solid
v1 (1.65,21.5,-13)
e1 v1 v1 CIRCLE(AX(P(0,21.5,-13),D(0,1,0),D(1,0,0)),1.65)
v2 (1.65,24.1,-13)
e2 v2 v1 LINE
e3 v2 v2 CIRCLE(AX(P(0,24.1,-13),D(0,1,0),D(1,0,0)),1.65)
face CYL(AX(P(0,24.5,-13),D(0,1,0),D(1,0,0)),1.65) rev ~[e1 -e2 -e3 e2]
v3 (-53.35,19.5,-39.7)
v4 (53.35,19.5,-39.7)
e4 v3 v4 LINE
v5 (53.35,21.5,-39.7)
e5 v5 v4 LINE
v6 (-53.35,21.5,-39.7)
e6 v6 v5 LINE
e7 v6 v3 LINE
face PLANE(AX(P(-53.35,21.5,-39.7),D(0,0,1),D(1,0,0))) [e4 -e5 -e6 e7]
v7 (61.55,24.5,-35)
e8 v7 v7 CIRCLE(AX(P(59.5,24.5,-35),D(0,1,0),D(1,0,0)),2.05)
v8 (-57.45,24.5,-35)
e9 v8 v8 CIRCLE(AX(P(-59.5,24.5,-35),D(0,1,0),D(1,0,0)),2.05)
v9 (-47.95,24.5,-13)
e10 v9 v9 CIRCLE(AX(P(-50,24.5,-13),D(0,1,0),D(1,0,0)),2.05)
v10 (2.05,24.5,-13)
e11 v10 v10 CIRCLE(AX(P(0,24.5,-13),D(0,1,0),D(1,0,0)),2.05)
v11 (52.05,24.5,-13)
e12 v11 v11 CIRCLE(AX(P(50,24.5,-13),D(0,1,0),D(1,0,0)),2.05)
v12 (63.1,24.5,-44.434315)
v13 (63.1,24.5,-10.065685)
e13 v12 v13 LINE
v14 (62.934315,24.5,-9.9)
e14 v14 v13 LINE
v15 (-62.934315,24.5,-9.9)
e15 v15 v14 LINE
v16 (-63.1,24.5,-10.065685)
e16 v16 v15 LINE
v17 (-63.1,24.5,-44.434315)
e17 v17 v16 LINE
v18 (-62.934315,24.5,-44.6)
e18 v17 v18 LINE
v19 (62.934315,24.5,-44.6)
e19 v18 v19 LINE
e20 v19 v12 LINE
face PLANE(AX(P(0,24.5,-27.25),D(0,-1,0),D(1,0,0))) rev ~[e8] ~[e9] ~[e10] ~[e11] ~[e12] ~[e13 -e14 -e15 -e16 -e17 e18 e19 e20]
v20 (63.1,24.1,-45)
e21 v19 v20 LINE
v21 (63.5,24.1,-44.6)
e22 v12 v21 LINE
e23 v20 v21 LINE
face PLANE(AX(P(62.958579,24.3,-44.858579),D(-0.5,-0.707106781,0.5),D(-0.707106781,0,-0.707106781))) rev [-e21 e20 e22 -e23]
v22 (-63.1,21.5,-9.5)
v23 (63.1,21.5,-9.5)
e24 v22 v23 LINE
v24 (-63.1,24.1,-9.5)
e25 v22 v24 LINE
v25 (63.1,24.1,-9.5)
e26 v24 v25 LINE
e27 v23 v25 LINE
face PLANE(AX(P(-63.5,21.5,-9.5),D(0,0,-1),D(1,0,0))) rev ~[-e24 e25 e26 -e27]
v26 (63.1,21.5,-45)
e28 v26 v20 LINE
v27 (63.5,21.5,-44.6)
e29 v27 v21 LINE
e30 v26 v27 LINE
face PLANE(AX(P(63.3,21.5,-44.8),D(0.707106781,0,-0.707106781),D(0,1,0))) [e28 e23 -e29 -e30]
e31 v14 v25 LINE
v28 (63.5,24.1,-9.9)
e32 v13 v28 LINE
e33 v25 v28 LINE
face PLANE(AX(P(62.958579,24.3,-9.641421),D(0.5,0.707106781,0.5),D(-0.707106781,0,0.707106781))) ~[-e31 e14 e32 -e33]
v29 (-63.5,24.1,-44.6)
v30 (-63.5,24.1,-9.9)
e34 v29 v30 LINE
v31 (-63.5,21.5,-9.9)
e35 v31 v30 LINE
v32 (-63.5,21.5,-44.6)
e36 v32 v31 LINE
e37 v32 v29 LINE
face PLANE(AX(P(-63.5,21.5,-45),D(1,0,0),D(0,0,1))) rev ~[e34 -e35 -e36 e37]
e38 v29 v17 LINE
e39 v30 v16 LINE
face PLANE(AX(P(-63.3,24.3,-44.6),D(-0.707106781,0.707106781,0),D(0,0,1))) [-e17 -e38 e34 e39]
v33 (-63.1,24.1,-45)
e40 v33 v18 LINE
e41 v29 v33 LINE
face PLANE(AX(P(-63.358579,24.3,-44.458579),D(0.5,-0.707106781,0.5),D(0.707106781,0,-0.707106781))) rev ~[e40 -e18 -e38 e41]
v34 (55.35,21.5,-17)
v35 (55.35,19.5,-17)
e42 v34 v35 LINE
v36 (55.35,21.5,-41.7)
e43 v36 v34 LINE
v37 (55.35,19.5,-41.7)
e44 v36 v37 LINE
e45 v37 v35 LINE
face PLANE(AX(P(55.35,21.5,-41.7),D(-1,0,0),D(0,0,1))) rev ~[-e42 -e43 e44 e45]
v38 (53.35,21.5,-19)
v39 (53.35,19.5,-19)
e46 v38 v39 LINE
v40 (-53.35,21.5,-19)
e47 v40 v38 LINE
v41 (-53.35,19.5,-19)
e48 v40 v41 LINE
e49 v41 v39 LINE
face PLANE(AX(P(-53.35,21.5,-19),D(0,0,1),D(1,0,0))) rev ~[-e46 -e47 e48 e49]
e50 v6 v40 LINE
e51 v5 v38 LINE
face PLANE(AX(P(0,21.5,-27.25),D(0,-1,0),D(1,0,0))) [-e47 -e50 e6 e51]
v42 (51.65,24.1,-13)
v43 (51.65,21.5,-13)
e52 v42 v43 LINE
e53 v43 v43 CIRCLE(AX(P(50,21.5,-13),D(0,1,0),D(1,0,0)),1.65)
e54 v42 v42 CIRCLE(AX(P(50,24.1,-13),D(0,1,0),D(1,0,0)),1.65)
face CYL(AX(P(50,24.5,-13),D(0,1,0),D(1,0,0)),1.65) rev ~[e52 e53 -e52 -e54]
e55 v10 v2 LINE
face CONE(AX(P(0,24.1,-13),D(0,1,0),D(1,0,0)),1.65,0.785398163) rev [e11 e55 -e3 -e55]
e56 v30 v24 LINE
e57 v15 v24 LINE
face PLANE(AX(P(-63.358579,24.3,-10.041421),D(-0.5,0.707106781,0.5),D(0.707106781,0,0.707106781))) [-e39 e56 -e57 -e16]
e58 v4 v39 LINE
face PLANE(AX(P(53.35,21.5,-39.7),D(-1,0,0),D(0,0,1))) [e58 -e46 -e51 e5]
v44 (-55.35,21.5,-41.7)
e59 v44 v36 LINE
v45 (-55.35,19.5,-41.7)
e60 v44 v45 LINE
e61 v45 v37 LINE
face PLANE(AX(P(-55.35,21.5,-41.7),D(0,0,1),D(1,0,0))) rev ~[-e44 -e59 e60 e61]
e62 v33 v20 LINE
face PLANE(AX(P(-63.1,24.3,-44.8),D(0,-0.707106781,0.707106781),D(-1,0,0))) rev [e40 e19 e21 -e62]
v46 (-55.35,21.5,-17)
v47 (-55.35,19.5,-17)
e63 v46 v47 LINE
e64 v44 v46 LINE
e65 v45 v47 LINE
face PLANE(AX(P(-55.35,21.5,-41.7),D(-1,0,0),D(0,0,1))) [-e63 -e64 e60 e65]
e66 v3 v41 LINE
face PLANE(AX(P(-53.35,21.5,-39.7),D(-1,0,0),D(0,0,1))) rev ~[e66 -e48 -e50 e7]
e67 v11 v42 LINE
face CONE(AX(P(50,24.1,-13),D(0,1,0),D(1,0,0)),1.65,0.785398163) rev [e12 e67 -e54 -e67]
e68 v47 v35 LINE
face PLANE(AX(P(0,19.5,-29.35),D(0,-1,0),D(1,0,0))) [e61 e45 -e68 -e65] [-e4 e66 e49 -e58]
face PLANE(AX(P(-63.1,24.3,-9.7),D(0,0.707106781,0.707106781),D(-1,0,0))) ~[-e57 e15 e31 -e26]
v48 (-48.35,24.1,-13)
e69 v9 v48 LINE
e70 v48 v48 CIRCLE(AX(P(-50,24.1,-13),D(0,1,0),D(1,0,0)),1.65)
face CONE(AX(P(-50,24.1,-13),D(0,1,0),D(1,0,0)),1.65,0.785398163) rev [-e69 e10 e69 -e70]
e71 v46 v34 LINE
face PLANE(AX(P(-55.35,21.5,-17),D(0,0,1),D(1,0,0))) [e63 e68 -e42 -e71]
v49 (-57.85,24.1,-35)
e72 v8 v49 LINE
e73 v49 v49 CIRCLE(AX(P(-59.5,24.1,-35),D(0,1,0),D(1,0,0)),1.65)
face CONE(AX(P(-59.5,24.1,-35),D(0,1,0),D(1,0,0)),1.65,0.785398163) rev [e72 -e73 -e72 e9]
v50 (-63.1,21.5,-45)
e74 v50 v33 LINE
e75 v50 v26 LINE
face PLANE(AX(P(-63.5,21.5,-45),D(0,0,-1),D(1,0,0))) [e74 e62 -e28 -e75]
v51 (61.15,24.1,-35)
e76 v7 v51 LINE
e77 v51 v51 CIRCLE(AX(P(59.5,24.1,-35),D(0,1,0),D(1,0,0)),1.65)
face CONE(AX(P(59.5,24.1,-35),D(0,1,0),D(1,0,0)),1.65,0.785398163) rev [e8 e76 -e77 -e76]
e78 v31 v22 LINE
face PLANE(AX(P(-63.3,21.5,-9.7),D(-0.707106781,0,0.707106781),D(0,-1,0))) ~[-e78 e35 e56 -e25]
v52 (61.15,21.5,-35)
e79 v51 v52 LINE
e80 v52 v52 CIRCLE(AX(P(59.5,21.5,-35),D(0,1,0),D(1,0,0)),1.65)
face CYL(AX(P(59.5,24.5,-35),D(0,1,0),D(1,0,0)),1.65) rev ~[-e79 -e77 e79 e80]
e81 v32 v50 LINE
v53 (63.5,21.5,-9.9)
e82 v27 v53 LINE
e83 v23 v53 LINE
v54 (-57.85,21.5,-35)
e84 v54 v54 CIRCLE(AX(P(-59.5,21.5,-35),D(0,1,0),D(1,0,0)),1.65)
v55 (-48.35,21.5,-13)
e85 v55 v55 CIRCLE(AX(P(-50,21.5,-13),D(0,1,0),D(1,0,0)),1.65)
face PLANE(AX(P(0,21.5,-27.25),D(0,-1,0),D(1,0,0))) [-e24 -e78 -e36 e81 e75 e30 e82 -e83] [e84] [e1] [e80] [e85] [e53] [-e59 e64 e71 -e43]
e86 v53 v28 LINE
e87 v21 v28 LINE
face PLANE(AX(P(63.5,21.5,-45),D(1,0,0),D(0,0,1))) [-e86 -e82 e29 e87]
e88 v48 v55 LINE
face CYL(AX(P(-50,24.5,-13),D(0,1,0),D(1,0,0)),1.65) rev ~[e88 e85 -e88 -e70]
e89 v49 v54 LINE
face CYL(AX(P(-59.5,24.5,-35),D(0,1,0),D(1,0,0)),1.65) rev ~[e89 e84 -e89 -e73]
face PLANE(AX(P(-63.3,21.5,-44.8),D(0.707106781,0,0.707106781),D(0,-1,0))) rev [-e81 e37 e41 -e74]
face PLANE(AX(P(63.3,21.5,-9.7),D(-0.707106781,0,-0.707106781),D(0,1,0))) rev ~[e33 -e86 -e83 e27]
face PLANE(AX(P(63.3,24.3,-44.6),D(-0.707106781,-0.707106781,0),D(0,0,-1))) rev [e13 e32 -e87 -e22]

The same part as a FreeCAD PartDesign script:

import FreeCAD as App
import Part
import Sketcher

V = App.Vector


def edges_at(feature, points):
    """Names of the edges that pass closest to the given points."""
    edges = feature.Shape.Edges
    near = lambda p: min(range(len(edges)), key=lambda i: edges[i].distToShape(Part.Vertex(*p))[0])
    return sorted({f"Edge{near(p) + 1}" for p in points})


def add_polygon(sketch, points):
    """Adds a closed chain of lines whose ends are joined by coincident constraints."""
    first, n = sketch.GeometryCount, len(points)
    for a, b in zip(points, points[1:] + points[:1]):
        sketch.addGeometry(Part.LineSegment(App.Vector(*a, 0), App.Vector(*b, 0)), False)
    for i in range(n):
        sketch.addConstraint(Sketcher.Constraint("Coincident", first + i, 2, first + (i + 1) % n, 1))

doc = App.newDocument("Part")
params = doc.addObject("Spreadsheet::Sheet", "Params")
for row, (alias, value) in enumerate([
    ("sketch1_width", "127 mm"),
    ("sketch1_height", "35.5 mm"),
    ("pad1_length", "3 mm"),
    ("sketch2_diameter", "3.3 mm"),
    ("pocket1_length", "5 mm"),
    ("chamfer_size", "0.4 mm"),
    ("sketch3_width", "110.7 mm"),
    ("sketch3_width2", "106.7 mm"),
    ("sketch3_height", "24.7 mm"),
    ("sketch3_height2", "20.7 mm"),
    ("pad2_length", "2 mm"),
    ("chamfer2_size", "0.4 mm"),
], start=1):
    params.set(f"A{row}", alias)
    params.set(f"B{row}", "=" + value)
    params.setAlias(f"B{row}", alias)

body = doc.addObject("PartDesign::Body", "Body")

# Sketch on XZ plane
sketch1 = body.newObject("Sketcher::SketchObject", "Sketch")
sketch1.AttachmentSupport = (doc.getObject("XZ_Plane"), [""])
sketch1.MapMode = "FlatFace"
add_polygon(sketch1, [(-64, 8), (-64, -28), (64, -28), (64, 8)])  # lines 0-3
sketch1.addConstraint(Sketcher.Constraint("Vertical", 0))
sketch1.addConstraint(Sketcher.Constraint("Horizontal", 1))
sketch1.addConstraint(Sketcher.Constraint("Vertical", 2))
sketch1.addConstraint(Sketcher.Constraint("Horizontal", 3))
sketch1.addConstraint(Sketcher.Constraint("DistanceX", 1, 1, 1, 2, 127.0))
sketch1.addConstraint(Sketcher.Constraint("DistanceY", 0, 2, 0, 1, 35.5))
sketch1.addConstraint(Sketcher.Constraint("DistanceY", 0, 2, -1, 1, 28.0))
sketch1.addConstraint(Sketcher.Constraint("DistanceX", 0, 2, -1, 1, 63.5))
sketch1.setExpression("Constraints[8]", "Params.sketch1_width")
sketch1.setExpression("Constraints[9]", "Params.sketch1_height")
pad1 = body.newObject("PartDesign::Pad", "Pad")
pad1.Profile = sketch1
pad1.setExpression("Length", "Params.pad1_length")
pad1.Reversed = True

# Sketch on XZ plane
sketch2 = body.newObject("Sketcher::SketchObject", "Sketch001")
sketch2.AttachmentSupport = (doc.getObject("XZ_Plane"), [""])
sketch2.MapMode = "FlatFace"
sketch2.AttachmentOffset = App.Placement(V(0, 0, -3), App.Rotation())
sketch2.addGeometry(Part.Circle(V(-59.5, -18, 0), V(0, 0, 1), 1.6), False)
sketch2.addGeometry(Part.Circle(V(59.5, -18, 0), V(0, 0, 1), 1.6), False)
sketch2.addGeometry(Part.Circle(V(-50, 4, 0), V(0, 0, 1), 1.6), False)
sketch2.addGeometry(Part.Circle(V(0, 4, 0), V(0, 0, 1), 1.6), False)
sketch2.addGeometry(Part.Circle(V(50, 4, 0), V(0, 0, 1), 1.6), False)
sketch2.addConstraint(Sketcher.Constraint("Equal", 0, 1))
sketch2.addConstraint(Sketcher.Constraint("Equal", 1, 2))
sketch2.addConstraint(Sketcher.Constraint("Equal", 2, 3))
sketch2.addConstraint(Sketcher.Constraint("Equal", 3, 4))
sketch2.addConstraint(Sketcher.Constraint("Symmetric", 0, 3, 1, 3, -2))
sketch2.addConstraint(Sketcher.Constraint("Symmetric", 2, 3, 4, 3, -2))
sketch2.addConstraint(Sketcher.Constraint("PointOnObject", 3, 3, -2))
sketch2.addConstraint(Sketcher.Constraint("Horizontal", 2, 3, 3, 3))
sketch2.addConstraint(Sketcher.Constraint("Diameter", 0, 3.3))
sketch2.addConstraint(Sketcher.Constraint("DistanceY", 0, 3, -1, 1, 18.0))
sketch2.addConstraint(Sketcher.Constraint("DistanceX", 2, 3, -1, 1, 50.0))
sketch2.addConstraint(Sketcher.Constraint("DistanceY", -1, 1, 2, 3, 4.0))
sketch2.addConstraint(Sketcher.Constraint("DistanceX", 0, 3, 1, 3, 119.0))
sketch2.setExpression("Constraints[8]", "Params.sketch2_diameter")
pocket1 = body.newObject("PartDesign::Pocket", "Pocket")
pocket1.Profile = sketch2
pocket1.setExpression("Length", "Params.pocket1_length")
pocket1.Reversed = True
doc.recompute()

chamfer = body.newObject("PartDesign::Chamfer", "Chamfer")
chamfer.Base = (pocket1, edges_at(pocket1, [
    (63.5, 1.5, -28),
    (-63.5, 1.5, -28),
    (-63.5, 1.5, 7.5),
    (63.5, 1.5, 7.5),
]))
chamfer.setExpression("Size", "Params.chamfer_size")

# Sketch on XZ plane
sketch3 = body.newObject("Sketcher::SketchObject", "Sketch002")
sketch3.AttachmentSupport = (doc.getObject("XZ_Plane"), [""])
sketch3.MapMode = "FlatFace"
add_polygon(sketch3, [(-55, 0), (-55, -25), (55, -25), (55, 0)])  # lines 0-3
add_polygon(sketch3, [(53, -23), (-53, -23), (-53, -2), (53, -2)])  # lines 4-7
sketch3.addConstraint(Sketcher.Constraint("Vertical", 0))
sketch3.addConstraint(Sketcher.Constraint("Horizontal", 1))
sketch3.addConstraint(Sketcher.Constraint("Vertical", 2))
sketch3.addConstraint(Sketcher.Constraint("Horizontal", 3))
sketch3.addConstraint(Sketcher.Constraint("Horizontal", 4))
sketch3.addConstraint(Sketcher.Constraint("Vertical", 5))
sketch3.addConstraint(Sketcher.Constraint("Horizontal", 6))
sketch3.addConstraint(Sketcher.Constraint("Vertical", 7))
sketch3.addConstraint(Sketcher.Constraint("Symmetric", 2, 2, 3, 2, -1, 1))
sketch3.addConstraint(Sketcher.Constraint("DistanceX", 1, 1, 1, 2, 110.7))
sketch3.addConstraint(Sketcher.Constraint("DistanceX", 4, 2, 4, 1, 106.7))
sketch3.addConstraint(Sketcher.Constraint("DistanceY", 0, 2, 0, 1, 24.7))
sketch3.addConstraint(Sketcher.Constraint("DistanceY", 5, 1, 5, 2, 20.7))
sketch3.addConstraint(Sketcher.Constraint("DistanceY", 5, 2, -1, 1, 2.0))
sketch3.addConstraint(Sketcher.Constraint("DistanceX", 0, 2, 4, 2, 2.0))
sketch3.setExpression("Constraints[17]", "Params.sketch3_width")
sketch3.setExpression("Constraints[18]", "Params.sketch3_width2")
sketch3.setExpression("Constraints[19]", "Params.sketch3_height")
sketch3.setExpression("Constraints[20]", "Params.sketch3_height2")
pad2 = body.newObject("PartDesign::Pad", "Pad001")
pad2.Profile = sketch3
pad2.setExpression("Length", "Params.pad2_length")
body2 = doc.addObject("PartDesign::Body", "Body001")
doc.recompute()

body.Placement = App.Placement(V(0, 4.5, 0), App.Rotation(V(0, 0, 1), 0))
boolean = body2.newObject("PartDesign::Boolean", "Boolean")
boolean.Type = "Fuse"
boolean.addObjects([body])
doc.recompute()

chamfer2 = body2.newObject("PartDesign::Chamfer", "Chamfer001")
chamfer2.Base = (boolean, edges_at(boolean, [
    (0, 7.5, 7.5),
    (-63.3, 7.5, 7.3),
    (63.3, 7.5, 7.3),
    (-63.5, 7.5, -10.25),
    (63.5, 7.5, -10.25),
    (-63.3, 7.5, -27.8),
    (63.3, 7.5, -27.8),
    (0, 7.5, -28),
    (-61.15, 7.5, -18),
    (-51.65, 7.5, 4),
    (-1.65, 7.5, 4),
    (57.85, 7.5, -18),
    (48.35, 7.5, 4),
]))
chamfer2.setExpression("Size", "Params.chamfer2_size")
body3 = doc.addObject("PartDesign::Body", "Body002")
doc.recompute()

body2.Placement = App.Placement(V(0, 17, -17), App.Rotation(V(0, 0, 1), 0))
boolean2 = body3.newObject("PartDesign::Boolean", "Boolean001")
boolean2.Type = "Fuse"
boolean2.addObjects([body2])

doc.recompute()
